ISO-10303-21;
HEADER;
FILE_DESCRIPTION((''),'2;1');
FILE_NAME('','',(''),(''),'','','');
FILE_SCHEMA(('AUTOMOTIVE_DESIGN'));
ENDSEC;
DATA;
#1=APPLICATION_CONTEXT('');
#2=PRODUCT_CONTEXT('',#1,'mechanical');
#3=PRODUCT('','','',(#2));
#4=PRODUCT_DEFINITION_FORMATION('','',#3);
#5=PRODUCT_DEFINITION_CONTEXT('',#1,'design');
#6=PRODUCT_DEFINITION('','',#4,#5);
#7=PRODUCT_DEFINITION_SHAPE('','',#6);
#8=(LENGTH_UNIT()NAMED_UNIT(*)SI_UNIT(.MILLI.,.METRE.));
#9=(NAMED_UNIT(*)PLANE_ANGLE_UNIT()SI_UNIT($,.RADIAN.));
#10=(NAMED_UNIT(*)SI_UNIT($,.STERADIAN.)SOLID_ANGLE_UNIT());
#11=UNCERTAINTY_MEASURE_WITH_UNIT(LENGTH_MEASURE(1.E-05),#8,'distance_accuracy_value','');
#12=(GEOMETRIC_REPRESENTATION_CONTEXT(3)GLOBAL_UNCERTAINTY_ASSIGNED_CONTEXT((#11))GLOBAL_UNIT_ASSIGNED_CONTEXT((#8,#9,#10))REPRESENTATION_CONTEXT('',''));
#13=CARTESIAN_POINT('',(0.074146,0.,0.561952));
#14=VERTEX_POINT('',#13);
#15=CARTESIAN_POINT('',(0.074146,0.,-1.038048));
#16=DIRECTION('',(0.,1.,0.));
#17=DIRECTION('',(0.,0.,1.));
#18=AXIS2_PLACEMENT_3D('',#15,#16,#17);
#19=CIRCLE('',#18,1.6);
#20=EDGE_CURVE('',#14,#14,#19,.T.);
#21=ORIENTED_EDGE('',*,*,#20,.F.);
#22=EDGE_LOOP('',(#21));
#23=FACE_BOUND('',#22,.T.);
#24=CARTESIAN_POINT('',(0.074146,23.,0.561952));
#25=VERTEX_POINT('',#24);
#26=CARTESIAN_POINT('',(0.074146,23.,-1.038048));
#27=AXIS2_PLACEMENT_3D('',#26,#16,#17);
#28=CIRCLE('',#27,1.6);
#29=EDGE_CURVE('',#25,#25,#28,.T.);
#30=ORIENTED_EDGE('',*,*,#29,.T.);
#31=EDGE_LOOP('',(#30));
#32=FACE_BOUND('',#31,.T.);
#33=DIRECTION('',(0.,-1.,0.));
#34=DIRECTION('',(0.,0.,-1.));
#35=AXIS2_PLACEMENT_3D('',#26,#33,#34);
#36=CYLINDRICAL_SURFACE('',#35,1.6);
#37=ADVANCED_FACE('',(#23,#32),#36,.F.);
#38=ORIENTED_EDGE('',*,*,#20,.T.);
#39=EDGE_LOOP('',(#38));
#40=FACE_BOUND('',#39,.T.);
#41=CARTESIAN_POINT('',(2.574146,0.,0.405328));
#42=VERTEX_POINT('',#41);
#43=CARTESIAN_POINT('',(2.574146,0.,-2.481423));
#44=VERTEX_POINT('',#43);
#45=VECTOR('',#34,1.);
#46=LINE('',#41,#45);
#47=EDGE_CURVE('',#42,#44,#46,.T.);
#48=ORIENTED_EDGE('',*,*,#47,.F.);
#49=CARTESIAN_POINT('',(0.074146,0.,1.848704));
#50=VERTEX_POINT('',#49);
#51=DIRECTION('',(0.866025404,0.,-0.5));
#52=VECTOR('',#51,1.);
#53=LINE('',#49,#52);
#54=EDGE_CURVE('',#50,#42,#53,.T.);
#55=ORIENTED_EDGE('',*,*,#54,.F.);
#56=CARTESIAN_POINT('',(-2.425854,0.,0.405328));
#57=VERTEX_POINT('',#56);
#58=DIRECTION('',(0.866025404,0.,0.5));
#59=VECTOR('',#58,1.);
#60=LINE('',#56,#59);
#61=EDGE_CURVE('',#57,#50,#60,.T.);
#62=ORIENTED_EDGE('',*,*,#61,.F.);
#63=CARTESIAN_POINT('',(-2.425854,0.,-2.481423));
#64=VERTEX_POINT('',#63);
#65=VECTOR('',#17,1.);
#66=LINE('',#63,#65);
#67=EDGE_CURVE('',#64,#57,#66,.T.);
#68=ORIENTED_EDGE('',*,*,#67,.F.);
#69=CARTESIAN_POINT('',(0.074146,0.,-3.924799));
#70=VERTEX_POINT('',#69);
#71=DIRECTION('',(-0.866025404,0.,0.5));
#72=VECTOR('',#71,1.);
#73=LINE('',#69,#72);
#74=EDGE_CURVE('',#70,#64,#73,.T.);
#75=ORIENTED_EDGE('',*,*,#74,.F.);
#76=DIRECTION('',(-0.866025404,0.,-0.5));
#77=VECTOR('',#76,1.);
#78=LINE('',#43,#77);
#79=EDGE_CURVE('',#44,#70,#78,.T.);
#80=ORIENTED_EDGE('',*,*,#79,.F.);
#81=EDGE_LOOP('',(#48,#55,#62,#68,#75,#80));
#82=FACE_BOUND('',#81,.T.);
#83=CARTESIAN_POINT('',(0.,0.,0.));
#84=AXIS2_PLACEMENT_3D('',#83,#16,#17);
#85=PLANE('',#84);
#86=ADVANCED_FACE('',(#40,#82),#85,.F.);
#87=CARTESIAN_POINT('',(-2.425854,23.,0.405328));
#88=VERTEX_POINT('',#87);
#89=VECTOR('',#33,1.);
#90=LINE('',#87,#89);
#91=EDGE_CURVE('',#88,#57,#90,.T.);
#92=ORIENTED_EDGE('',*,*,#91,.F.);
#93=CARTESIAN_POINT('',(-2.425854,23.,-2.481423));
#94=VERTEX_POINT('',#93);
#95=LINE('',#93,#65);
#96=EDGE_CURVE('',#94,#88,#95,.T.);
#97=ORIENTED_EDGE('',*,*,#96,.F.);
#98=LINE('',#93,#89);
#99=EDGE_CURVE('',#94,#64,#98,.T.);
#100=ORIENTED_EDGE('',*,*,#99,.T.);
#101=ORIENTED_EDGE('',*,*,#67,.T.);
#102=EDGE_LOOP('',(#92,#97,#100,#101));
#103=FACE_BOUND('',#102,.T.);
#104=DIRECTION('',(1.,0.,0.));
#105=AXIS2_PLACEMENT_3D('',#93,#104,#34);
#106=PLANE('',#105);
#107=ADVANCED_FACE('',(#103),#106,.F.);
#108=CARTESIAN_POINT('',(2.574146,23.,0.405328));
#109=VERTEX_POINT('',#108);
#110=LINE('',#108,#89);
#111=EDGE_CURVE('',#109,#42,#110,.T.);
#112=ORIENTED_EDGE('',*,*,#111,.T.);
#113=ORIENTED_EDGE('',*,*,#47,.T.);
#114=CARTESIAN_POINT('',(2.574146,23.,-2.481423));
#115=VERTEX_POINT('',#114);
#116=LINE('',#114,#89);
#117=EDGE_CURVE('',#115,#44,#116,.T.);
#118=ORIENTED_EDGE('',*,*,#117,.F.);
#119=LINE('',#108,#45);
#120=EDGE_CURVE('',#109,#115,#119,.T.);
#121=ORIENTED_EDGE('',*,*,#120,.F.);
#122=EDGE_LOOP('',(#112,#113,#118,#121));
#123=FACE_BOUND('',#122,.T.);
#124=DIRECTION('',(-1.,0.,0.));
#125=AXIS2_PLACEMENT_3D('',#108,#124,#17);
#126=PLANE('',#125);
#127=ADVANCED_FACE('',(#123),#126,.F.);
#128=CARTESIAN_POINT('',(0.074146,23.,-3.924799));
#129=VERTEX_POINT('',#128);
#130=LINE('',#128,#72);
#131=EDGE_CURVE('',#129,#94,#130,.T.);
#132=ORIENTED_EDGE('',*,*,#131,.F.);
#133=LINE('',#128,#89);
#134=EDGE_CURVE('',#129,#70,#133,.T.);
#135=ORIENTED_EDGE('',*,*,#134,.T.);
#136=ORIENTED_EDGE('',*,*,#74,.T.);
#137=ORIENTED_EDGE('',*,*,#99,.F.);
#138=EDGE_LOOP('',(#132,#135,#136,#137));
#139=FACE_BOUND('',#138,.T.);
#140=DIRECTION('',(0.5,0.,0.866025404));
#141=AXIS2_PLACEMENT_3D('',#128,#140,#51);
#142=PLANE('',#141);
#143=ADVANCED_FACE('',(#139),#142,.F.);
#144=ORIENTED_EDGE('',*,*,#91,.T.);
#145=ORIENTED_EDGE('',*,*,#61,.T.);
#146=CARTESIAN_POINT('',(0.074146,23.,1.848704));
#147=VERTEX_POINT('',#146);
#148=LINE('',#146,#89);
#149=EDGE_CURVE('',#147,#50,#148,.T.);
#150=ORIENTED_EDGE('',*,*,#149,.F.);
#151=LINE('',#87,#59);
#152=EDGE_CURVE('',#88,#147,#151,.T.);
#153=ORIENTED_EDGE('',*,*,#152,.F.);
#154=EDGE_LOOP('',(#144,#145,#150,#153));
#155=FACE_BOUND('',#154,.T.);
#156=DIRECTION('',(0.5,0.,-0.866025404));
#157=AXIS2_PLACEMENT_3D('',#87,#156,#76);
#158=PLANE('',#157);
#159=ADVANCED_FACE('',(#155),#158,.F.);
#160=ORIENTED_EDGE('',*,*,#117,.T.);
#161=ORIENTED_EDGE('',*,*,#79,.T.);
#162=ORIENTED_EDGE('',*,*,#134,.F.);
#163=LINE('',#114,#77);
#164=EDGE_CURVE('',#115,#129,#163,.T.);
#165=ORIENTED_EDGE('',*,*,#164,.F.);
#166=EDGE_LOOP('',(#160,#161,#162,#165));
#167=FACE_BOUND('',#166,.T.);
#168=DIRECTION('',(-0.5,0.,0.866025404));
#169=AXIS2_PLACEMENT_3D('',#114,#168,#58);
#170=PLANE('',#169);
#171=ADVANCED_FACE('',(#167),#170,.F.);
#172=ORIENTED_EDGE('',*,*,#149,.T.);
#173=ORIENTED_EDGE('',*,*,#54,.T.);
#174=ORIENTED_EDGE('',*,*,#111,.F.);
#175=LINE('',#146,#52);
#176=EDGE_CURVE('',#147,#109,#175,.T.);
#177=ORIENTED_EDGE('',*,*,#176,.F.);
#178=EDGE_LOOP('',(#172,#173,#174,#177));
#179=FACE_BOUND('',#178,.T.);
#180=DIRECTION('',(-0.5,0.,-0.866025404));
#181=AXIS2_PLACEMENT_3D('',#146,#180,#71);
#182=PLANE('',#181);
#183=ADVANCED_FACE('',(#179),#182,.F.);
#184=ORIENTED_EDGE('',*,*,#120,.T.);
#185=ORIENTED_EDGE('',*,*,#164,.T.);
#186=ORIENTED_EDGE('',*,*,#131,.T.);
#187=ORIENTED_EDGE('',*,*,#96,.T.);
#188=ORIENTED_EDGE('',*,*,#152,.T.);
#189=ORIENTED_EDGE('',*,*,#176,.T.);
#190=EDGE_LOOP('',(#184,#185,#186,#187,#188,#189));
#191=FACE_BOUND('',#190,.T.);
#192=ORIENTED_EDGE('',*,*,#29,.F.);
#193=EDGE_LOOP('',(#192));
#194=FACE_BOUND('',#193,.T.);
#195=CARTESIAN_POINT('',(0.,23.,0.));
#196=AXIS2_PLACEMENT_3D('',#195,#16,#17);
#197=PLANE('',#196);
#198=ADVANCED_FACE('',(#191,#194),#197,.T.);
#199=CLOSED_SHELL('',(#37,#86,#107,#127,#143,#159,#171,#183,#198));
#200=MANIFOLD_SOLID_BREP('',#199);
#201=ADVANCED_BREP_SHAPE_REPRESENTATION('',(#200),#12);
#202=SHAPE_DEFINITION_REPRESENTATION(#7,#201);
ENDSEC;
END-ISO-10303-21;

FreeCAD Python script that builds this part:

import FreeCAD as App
import Part
import Sketcher

V = App.Vector
Q = App.Units.Quantity

doc = App.newDocument("Part")
body = doc.addObject("PartDesign::Body", "Body")

# Sketch on XZ plane
sketch1 = body.newObject("Sketcher::SketchObject", "Sketch")
sketch1.AttachmentSupport = (doc.getObject("XZ_Plane"), [""])
sketch1.MapMode = "FlatFace"
sketch1.addGeometry([
    Part.LineSegment(V(0.1, -3.9, 0), V(-2.4, -2.5, 0)),  # 0
    Part.LineSegment(V(-2.4, -2.5, 0), V(-2.4, 0.4, 0)),  # 1
    Part.LineSegment(V(-2.4, 0.4, 0), V(0.1, 1.8, 0)),  # 2
    Part.LineSegment(V(0.1, 1.8, 0), V(2.6, 0.4, 0)),  # 3
    Part.LineSegment(V(2.6, 0.4, 0), V(2.6, -2.5, 0)),  # 4
    Part.LineSegment(V(2.6, -2.5, 0), V(0.1, -3.9, 0)),  # 5
    Part.Circle(V(0.1, -1, 0), V(0, 0, 1), 1.6),  # 6
], False)
sketch1.addConstraint([
    Sketcher.Constraint("Coincident", 0, 2, 1, 1),
    Sketcher.Constraint("Coincident", 1, 2, 2, 1),
    Sketcher.Constraint("Coincident", 2, 2, 3, 1),
    Sketcher.Constraint("Coincident", 3, 2, 4, 1),
    Sketcher.Constraint("Coincident", 4, 2, 5, 1),
    Sketcher.Constraint("Coincident", 5, 2, 0, 1),
    Sketcher.Constraint("Vertical", 1),
    Sketcher.Constraint("Vertical", 4),
    Sketcher.Constraint("Parallel", 0, 3),
    Sketcher.Constraint("Parallel", 2, 5),
    Sketcher.Constraint("Horizontal", 1, 2, 3, 2),
    Sketcher.Constraint("Horizontal", 0, 2, 4, 2),
    Sketcher.Constraint("Vertical", 6, 3, 2, 2),
    Sketcher.Constraint("Vertical", 2, 2, 5, 2),
    Sketcher.Constraint("Diameter", 6, 3.2),
    Sketcher.Constraint("Angle", 0, Q("150 deg")),
    Sketcher.Constraint("DistanceX", 1, 2, 3, 2, 5.0),
    Sketcher.Constraint("DistanceY", 1, 1, 1, 2, 2.886751),
    Sketcher.Constraint("DistanceY", 5, 2, -1, 1, 3.924799),
    Sketcher.Constraint("DistanceY", 6, 3, 2, 2, 2.886751),
    Sketcher.Constraint("DistanceX", -1, 1, 6, 3, 0.074146),
])
pad1 = body.newObject("PartDesign::Pad", "Pad")
pad1.Profile = sketch1
pad1.Length = 23
pad1.Reversed = True

doc.recompute()
